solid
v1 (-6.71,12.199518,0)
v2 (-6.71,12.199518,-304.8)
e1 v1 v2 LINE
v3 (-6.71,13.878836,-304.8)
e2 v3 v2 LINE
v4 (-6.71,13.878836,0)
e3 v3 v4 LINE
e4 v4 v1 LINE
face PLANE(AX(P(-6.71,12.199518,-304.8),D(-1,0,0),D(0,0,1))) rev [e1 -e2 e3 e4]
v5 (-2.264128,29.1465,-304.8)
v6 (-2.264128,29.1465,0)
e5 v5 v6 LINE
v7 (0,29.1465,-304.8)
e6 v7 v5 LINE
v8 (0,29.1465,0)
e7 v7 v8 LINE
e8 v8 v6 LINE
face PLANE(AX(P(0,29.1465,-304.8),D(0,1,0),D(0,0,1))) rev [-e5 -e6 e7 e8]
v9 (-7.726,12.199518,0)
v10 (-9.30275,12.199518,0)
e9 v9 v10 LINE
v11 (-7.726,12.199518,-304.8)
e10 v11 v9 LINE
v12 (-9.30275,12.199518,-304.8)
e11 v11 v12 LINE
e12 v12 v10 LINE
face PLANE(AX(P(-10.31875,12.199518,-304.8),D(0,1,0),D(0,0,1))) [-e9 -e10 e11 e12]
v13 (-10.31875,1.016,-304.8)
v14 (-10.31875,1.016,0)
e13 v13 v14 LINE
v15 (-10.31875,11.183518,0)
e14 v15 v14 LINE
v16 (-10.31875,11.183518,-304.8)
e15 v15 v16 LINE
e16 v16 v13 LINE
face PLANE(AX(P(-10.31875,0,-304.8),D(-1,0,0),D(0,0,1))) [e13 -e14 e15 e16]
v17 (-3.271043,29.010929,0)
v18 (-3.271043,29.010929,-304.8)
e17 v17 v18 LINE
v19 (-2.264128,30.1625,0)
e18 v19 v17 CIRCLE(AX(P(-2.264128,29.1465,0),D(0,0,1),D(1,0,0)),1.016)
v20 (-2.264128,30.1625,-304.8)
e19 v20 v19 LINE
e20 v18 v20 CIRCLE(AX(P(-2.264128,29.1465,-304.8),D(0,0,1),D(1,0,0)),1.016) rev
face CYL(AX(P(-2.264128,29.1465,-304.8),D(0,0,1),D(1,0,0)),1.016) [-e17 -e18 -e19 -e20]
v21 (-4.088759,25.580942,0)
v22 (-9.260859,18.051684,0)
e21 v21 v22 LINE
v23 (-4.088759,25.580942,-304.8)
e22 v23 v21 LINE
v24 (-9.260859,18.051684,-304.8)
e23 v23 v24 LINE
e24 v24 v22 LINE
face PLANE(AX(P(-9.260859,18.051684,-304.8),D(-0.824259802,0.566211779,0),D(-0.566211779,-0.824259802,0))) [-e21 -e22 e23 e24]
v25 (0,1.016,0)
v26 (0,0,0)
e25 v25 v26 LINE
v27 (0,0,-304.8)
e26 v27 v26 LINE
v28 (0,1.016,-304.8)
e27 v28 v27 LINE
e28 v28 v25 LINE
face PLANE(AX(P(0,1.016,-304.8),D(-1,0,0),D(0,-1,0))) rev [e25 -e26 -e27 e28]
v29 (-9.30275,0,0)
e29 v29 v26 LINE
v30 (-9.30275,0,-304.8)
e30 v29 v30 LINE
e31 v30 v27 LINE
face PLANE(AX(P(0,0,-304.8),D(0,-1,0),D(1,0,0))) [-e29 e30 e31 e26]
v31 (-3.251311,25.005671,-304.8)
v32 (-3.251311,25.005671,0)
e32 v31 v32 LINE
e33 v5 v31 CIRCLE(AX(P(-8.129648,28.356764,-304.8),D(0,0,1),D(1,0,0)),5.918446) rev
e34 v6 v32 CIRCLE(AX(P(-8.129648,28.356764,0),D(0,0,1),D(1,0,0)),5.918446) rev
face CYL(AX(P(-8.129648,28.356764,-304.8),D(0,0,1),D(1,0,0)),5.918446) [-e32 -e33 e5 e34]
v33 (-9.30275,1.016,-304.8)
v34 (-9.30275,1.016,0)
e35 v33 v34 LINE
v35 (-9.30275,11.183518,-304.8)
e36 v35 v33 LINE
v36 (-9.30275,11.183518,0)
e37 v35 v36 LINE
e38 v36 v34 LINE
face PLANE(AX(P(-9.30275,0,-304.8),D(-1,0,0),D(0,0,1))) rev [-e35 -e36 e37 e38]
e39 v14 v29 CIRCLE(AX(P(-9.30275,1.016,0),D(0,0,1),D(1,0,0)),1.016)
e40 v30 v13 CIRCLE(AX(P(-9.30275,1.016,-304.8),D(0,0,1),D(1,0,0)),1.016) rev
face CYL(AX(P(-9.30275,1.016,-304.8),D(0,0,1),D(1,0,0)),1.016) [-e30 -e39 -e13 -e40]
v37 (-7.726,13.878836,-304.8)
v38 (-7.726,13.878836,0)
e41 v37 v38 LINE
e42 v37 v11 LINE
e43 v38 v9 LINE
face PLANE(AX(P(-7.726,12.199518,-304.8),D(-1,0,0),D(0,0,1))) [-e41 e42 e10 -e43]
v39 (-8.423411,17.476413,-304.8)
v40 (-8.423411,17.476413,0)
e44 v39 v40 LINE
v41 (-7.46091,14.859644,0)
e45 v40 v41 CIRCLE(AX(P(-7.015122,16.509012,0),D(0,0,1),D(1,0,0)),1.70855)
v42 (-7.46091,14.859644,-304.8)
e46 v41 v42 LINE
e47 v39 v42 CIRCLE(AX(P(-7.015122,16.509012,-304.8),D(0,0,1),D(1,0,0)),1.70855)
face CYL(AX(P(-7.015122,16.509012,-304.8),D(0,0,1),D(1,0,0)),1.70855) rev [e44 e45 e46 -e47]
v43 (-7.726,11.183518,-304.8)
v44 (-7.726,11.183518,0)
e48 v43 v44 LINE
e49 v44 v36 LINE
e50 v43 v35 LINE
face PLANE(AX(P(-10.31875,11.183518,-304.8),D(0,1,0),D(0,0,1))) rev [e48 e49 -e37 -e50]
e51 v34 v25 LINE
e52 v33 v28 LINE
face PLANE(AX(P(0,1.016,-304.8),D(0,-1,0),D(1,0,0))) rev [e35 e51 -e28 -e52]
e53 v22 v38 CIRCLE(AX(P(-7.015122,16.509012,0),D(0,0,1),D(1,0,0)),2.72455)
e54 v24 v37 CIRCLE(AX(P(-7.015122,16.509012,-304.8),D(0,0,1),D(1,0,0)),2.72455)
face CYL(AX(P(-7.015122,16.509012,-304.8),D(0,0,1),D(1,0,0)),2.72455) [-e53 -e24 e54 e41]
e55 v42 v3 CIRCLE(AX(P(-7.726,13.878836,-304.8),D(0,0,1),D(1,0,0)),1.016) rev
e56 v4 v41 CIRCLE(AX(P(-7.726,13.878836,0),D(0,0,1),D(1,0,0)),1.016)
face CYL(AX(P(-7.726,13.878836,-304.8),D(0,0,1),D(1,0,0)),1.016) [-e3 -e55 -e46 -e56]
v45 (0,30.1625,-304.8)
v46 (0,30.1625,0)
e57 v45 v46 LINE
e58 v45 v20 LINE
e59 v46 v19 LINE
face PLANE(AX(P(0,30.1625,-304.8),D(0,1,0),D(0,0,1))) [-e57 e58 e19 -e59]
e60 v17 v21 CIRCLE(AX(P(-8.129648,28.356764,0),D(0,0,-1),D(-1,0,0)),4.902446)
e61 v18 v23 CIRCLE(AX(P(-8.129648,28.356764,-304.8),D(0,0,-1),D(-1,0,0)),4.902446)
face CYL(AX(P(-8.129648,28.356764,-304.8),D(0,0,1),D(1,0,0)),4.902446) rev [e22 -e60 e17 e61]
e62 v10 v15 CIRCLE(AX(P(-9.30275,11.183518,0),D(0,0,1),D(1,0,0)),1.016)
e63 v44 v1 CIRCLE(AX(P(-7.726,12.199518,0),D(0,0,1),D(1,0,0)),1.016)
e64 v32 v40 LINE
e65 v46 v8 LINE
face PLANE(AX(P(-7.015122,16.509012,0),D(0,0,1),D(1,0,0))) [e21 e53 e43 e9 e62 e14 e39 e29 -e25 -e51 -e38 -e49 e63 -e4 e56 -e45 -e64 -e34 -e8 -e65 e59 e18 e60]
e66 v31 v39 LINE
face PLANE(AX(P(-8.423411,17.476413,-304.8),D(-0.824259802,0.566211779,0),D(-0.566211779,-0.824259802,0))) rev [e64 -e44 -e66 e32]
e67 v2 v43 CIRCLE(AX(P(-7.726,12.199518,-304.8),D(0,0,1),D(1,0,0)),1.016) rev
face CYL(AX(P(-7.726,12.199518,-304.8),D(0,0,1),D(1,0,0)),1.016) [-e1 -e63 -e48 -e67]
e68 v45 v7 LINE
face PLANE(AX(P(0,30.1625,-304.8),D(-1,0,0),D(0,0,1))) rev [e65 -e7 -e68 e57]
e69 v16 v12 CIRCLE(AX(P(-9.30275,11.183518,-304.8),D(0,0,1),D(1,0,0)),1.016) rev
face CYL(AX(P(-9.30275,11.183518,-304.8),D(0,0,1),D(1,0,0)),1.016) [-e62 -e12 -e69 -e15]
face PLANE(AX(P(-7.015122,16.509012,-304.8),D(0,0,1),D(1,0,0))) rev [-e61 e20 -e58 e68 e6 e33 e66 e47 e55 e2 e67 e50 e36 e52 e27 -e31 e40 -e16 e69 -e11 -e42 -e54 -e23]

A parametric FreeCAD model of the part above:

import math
import FreeCAD as App
import Part
import Sketcher
Q = App.Units.Quantity


def edges_at(feature, points):
    """Names of the edges that pass closest to the given points."""
    edges = feature.Shape.Edges
    near = lambda p: min(range(len(edges)), key=lambda i: edges[i].distToShape(Part.Vertex(*p))[0])
    return sorted({f"Edge{near(p) + 1}" for p in points})

doc = App.newDocument("Part")
params = doc.addObject("Spreadsheet::Sheet", "Params")
for row, (alias, value) in enumerate([
    ("sketch1_height", "0.04 in"),
    ("sketch1_width", "0.40625 in"),
    ("sketch1_width2", "0.140625 in"),
    ("pad1_length", "12 in"),
    ("fillet_radius", "0.04 in"),
], start=1):
    params.set(f"A{row}", alias)
    params.set(f"B{row}", "=" + value)
    params.setAlias(f"B{row}", alias)

body = doc.addObject("PartDesign::Body", "Body")

# Sketch on XY plane
sketch1 = doc.addObject("Sketcher::SketchObject", "Sketch")
body.addObject(sketch1)
sketch1.AttachmentSupport = (doc.XY_Plane, [""])
sketch1.MapMode = "FlatFace"
sketch1.addGeometry([
    Part.LineSegment(App.Vector(-10.3, 0, 0), App.Vector(0, 0, 0)),  # 0
    Part.LineSegment(App.Vector(0, 0, 0), App.Vector(0, 1, 0)),  # 1
    Part.LineSegment(App.Vector(0, 1, 0), App.Vector(-9.3, 1, 0)),  # 2
    Part.LineSegment(App.Vector(-9.3, 1, 0), App.Vector(-9.3, 11.2, 0)),  # 3
    Part.LineSegment(App.Vector(-9.3, 11.2, 0), App.Vector(-6.7, 11.2, 0)),  # 4
    Part.LineSegment(App.Vector(-6.7, 11.2, 0), App.Vector(-6.7, 14.8, 0)),  # 5
    Part.ArcOfCircle(Part.Circle(App.Vector(-7, 16.5, 0), App.Vector(0, 0, 1), 1.7), math.radians(146), math.radians(280)),  # 6
    Part.LineSegment(App.Vector(-8.4, 17.5, 0), App.Vector(-3.3, 25, 0)),  # 7
    Part.ArcOfCircle(Part.Circle(App.Vector(-8.1, 28.4, 0), App.Vector(0, 0, 1), 5.9), math.radians(-34), math.radians(8)),  # 8
    Part.LineSegment(App.Vector(-2.3, 29.1, 0), App.Vector(0, 29.1, 0)),  # 9
    Part.LineSegment(App.Vector(0, 29.1, 0), App.Vector(0, 30.2, 0)),  # 10
    Part.LineSegment(App.Vector(0, 30.2, 0), App.Vector(-3.6, 30.2, 0)),  # 11
    Part.ArcOfCircle(Part.Circle(App.Vector(-8.1, 28.4, 0), App.Vector(0, 0, 1), 4.9), math.radians(-34), math.radians(22)),  # 12
    Part.LineSegment(App.Vector(-4.1, 25.6, 0), App.Vector(-9.3, 18.1, 0)),  # 13
    Part.ArcOfCircle(Part.Circle(App.Vector(-7, 16.5, 0), App.Vector(0, 0, 1), 2.7), math.radians(146), math.radians(255)),  # 14
    Part.LineSegment(App.Vector(-7.7, 13.9, 0), App.Vector(-7.7, 12.2, 0)),  # 15
    Part.LineSegment(App.Vector(-7.7, 12.2, 0), App.Vector(-10.3, 12.2, 0)),  # 16
    Part.LineSegment(App.Vector(-10.3, 12.2, 0), App.Vector(-10.3, 0, 0)),  # 17
], False)
sketch1.addConstraint([
    Sketcher.Constraint("Coincident", 0, 2, 1, 1),
    Sketcher.Constraint("Coincident", 1, 2, 2, 1),
    Sketcher.Constraint("Coincident", 2, 2, 3, 1),
    Sketcher.Constraint("Coincident", 3, 2, 4, 1),
    Sketcher.Constraint("Coincident", 4, 2, 5, 1),
    Sketcher.Constraint("Coincident", 5, 2, 6, 2),
    Sketcher.Constraint("Tangent", 6, 1, 7, 1),
    Sketcher.Constraint("Tangent", 7, 2, 8, 1),
    Sketcher.Constraint("Coincident", 8, 2, 9, 1),
    Sketcher.Constraint("Coincident", 9, 2, 10, 1),
    Sketcher.Constraint("Coincident", 10, 2, 11, 1),
    Sketcher.Constraint("Coincident", 11, 2, 12, 2),
    Sketcher.Constraint("Tangent", 12, 1, 13, 1),
    Sketcher.Constraint("Tangent", 13, 2, 14, 1),
    Sketcher.Constraint("Coincident", 14, 2, 15, 1),
    Sketcher.Constraint("Coincident", 15, 2, 16, 1),
    Sketcher.Constraint("Coincident", 16, 2, 17, 1),
    Sketcher.Constraint("Coincident", 17, 2, 0, 1),
    Sketcher.Constraint("Horizontal", 0),
    Sketcher.Constraint("Vertical", 1),
    Sketcher.Constraint("Horizontal", 2),
    Sketcher.Constraint("Vertical", 3),
    Sketcher.Constraint("Horizontal", 4),
    Sketcher.Constraint("Vertical", 5),
    Sketcher.Constraint("Horizontal", 9),
    Sketcher.Constraint("Vertical", 10),
    Sketcher.Constraint("Horizontal", 11),
    Sketcher.Constraint("Vertical", 15),
    Sketcher.Constraint("Horizontal", 16),
    Sketcher.Constraint("Vertical", 17),
    Sketcher.Constraint("Coincident", 0, 2, -1, 1),
    Sketcher.Constraint("Coincident", 12, 3, 8, 3),
    Sketcher.Constraint("Coincident", 14, 3, 6, 3),
    Sketcher.Constraint("PointOnObject", 9, 2, -2),
    Sketcher.Constraint("Parallel", 7, 13),
    Sketcher.Constraint("Equal", 4, 16),
    Sketcher.Constraint("Equal", 1, 10),
    Sketcher.Constraint("DistanceY", 1, 1, 1, 2, Q("0.04 in")),
    Sketcher.Constraint("DistanceX", 0, 1, 0, 2, Q("0.40625 in")),
    Sketcher.Constraint("DistanceX", 11, 2, 11, 1, Q("0.140625 in")),
    Sketcher.Constraint("DistanceX", 14, 2, 5, 2, Q("0.04 in")),
    Sketcher.Constraint("DistanceY", 4, 2, 15, 2, Q("0.04 in")),
    Sketcher.Constraint("DistanceY", -1, 1, 10, 2, Q("1.1875 in")),
    Sketcher.Constraint("Radius", 6, Q("1.70855 mm")),
    Sketcher.Constraint("Radius", 14, Q("2.72455 mm")),
    Sketcher.Constraint("Radius", 8, Q("5.918446 mm")),
    Sketcher.Constraint("DistanceX", 4, 1, 4, 2, Q("2.59275 mm")),
    Sketcher.Constraint("DistanceX", 9, 1, 9, 2, Q("2.264128 mm")),
    Sketcher.Constraint("DistanceY", 3, 1, 3, 2, Q("10.167518 mm")),
    Sketcher.Constraint("DistanceY", 5, 1, 5, 2, Q("3.64441 mm")),
    Sketcher.Constraint("DistanceY", 15, 2, 15, 1, Q("1.679318 mm")),
])
sketch1.setExpression("Constraints[37]", "Params.sketch1_height")
sketch1.setExpression("Constraints[38]", "Params.sketch1_width")
sketch1.setExpression("Constraints[39]", "Params.sketch1_width2")
pad1 = doc.addObject("PartDesign::Pad", "Pad")
body.addObject(pad1)
pad1.Profile = sketch1
pad1.setExpression("Length", "Params.pad1_length")
pad1.Reversed = True
doc.recompute()

fillet = doc.addObject("PartDesign::Fillet", "Fillet")
body.addObject(fillet)
fillet.Base = (pad1, edges_at(pad1, [
    (-10.319, 0, -152.4),
    (-10.319, 12.2, -152.4),
    (-3.572, 30.163, -152.4),
    (-6.71, 14.828, -152.4),
    (-6.71, 11.184, -152.4),
]))
fillet.setExpression("Radius", "Params.fillet_radius")

doc.recompute()
